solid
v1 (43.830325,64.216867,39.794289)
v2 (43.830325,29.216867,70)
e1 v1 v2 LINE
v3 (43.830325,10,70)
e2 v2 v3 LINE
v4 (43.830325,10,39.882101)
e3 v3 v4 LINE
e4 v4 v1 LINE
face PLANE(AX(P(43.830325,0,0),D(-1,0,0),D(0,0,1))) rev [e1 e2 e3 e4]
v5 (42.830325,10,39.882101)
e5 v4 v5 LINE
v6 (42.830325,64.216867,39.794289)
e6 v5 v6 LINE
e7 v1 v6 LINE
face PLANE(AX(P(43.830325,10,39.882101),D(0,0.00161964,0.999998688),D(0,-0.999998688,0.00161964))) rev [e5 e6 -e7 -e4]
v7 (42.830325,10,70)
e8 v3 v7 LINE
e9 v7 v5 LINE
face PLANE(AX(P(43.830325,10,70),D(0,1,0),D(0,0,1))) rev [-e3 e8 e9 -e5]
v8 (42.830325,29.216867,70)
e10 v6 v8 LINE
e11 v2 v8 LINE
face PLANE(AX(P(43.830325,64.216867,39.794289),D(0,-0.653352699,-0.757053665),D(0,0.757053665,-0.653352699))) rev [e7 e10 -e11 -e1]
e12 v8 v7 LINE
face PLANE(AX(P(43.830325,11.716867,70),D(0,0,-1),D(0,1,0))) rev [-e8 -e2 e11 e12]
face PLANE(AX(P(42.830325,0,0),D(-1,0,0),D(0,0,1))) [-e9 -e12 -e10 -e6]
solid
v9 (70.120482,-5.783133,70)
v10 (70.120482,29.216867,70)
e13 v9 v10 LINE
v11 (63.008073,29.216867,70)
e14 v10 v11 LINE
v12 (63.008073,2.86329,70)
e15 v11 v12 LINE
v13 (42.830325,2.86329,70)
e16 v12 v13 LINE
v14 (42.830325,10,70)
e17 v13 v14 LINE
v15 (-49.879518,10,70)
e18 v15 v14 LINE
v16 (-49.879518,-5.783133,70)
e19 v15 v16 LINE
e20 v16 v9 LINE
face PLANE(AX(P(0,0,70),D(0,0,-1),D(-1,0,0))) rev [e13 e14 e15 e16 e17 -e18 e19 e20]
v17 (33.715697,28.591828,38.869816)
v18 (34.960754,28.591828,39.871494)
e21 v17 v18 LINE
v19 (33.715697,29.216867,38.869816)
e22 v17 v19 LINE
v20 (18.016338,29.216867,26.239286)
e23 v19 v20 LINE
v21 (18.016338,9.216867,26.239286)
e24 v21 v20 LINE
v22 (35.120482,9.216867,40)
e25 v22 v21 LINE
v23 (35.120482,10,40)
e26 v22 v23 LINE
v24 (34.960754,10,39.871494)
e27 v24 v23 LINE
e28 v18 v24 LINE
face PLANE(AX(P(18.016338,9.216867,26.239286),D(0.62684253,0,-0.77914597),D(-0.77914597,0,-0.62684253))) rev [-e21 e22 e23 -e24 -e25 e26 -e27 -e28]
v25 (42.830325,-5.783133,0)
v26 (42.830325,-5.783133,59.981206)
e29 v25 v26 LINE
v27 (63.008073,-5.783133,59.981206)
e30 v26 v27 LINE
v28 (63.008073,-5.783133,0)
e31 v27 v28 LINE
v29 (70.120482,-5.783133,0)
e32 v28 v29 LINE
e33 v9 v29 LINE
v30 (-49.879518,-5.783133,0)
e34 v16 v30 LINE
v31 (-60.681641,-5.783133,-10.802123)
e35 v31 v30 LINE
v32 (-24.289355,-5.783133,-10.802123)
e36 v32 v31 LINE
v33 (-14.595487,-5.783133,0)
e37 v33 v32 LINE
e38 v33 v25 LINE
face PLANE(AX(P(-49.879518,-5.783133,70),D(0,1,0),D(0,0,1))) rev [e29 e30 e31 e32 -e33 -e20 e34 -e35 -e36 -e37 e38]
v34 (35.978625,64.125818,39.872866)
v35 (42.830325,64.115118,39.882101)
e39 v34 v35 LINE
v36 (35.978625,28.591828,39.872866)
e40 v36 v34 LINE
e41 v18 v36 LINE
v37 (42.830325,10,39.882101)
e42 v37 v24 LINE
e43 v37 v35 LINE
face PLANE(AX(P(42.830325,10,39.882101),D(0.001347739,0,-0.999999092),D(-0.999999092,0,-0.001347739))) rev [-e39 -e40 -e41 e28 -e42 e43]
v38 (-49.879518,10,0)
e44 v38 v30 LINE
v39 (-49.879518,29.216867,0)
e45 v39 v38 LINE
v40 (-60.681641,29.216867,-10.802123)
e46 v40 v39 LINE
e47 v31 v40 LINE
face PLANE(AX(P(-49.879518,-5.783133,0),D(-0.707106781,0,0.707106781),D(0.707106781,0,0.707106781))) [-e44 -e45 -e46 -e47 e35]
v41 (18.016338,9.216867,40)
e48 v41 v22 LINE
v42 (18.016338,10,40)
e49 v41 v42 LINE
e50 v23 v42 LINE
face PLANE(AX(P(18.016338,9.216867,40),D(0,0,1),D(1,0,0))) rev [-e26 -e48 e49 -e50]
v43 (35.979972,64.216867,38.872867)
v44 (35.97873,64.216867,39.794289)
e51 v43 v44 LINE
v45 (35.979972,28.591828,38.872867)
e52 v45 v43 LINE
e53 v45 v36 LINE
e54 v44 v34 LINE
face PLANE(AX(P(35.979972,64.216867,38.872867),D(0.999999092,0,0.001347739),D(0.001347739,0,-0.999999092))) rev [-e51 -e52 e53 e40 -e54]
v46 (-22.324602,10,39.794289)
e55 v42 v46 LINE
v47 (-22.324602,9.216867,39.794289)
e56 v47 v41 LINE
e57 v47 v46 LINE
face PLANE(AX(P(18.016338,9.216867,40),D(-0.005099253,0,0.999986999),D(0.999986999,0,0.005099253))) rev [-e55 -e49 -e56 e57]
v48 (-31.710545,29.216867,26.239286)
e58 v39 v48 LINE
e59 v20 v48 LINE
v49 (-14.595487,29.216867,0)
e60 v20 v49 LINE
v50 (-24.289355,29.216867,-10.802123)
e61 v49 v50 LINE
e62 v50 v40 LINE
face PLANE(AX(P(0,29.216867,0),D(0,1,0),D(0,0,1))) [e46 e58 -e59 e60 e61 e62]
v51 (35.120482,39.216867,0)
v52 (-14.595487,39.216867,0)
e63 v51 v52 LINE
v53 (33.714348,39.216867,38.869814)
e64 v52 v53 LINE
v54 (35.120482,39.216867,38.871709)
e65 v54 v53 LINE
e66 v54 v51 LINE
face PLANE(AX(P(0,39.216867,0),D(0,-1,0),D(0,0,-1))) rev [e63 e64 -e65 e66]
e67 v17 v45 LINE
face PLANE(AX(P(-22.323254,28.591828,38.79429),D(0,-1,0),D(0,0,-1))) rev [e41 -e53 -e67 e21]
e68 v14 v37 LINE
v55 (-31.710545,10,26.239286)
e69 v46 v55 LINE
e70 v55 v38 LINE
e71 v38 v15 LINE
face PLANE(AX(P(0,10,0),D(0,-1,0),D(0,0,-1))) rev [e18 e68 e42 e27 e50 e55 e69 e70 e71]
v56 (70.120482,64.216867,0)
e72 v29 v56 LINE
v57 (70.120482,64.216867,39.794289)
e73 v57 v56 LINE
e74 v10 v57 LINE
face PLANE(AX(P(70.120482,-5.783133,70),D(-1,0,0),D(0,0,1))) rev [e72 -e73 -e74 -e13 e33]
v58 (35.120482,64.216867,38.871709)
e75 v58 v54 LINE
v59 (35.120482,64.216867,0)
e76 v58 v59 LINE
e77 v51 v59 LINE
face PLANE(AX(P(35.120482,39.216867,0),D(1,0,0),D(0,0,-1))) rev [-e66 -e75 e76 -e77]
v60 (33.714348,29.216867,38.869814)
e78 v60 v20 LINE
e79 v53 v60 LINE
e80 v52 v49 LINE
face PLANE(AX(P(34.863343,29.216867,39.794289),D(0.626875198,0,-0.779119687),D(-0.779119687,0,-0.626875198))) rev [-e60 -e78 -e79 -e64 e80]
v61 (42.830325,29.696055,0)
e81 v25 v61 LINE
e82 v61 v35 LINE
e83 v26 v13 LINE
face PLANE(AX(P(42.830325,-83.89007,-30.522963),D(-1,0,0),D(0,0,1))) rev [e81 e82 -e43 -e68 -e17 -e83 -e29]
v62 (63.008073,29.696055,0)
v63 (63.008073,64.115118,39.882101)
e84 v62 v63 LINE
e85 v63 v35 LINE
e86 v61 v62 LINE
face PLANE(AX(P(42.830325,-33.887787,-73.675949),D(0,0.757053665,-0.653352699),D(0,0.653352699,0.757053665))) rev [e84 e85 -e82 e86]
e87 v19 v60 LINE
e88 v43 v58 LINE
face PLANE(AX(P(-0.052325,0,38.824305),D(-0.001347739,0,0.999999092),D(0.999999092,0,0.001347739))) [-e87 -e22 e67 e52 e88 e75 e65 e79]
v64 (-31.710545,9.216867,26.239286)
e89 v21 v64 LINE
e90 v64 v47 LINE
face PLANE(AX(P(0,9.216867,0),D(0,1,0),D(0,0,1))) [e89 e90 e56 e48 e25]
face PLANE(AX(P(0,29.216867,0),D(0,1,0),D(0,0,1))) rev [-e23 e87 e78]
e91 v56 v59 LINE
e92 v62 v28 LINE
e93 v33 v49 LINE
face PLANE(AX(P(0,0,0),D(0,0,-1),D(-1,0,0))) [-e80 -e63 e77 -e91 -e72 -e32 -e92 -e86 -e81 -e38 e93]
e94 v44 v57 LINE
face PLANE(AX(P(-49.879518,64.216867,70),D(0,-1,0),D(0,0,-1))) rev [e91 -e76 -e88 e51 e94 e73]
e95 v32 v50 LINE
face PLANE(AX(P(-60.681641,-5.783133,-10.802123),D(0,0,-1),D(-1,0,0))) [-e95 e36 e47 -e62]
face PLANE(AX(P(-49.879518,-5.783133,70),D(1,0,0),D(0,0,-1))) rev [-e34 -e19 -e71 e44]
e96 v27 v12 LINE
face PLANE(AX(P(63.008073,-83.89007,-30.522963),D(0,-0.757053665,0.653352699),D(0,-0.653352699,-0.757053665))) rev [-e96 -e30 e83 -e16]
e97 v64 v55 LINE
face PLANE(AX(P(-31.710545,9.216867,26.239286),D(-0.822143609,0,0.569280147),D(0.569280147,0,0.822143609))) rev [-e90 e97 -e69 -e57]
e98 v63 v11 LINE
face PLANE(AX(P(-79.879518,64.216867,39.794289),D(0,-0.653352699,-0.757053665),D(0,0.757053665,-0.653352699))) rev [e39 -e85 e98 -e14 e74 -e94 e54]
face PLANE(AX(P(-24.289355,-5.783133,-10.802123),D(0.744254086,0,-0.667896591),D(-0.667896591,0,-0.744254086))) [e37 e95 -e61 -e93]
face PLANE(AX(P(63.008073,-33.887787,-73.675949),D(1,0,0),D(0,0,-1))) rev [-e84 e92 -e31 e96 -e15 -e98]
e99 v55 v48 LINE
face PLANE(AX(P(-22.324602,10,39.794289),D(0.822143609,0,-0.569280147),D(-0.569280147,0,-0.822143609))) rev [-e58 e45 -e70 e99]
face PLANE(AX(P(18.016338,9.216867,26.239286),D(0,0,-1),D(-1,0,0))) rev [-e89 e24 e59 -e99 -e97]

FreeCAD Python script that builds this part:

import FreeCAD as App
import Part
import Sketcher
from FreeCAD import Vector
Q = App.Units.Quantity

doc = App.newDocument("Part")
body = doc.addObject("PartDesign::Body", "Body")

# Sketch on XY plane
sketch1 = doc.addObject("Sketcher::SketchObject", "Sketch")
body.addObject(sketch1)
sketch1.AttachmentSupport = (doc.XY_Plane, [""])
sketch1.MapMode = "FlatFace"
sketch1.addGeometry([
    Part.LineSegment(Vector(-50, 64, 0), Vector(-50, -6, 0)),
    Part.LineSegment(Vector(-50, -6, 0), Vector(70, -6, 0)),
    Part.LineSegment(Vector(70, -6, 0), Vector(70, 64, 0)),
    Part.LineSegment(Vector(70, 64, 0), Vector(-50, 64, 0)),
], False)
sketch1.addConstraint([
    Sketcher.Constraint("Coincident", 0, 2, 1, 1),
    Sketcher.Constraint("Coincident", 1, 2, 2, 1),
    Sketcher.Constraint("Coincident", 2, 2, 3, 1),
    Sketcher.Constraint("Coincident", 3, 2, 0, 1),
    Sketcher.Constraint("Vertical", 0),
    Sketcher.Constraint("Horizontal", 1),
    Sketcher.Constraint("Vertical", 2),
    Sketcher.Constraint("Horizontal", 3),
    Sketcher.Constraint("DistanceX", 1, 1, 1, 2, 120.0),
    Sketcher.Constraint("DistanceY", 0, 2, 0, 1, 70.0),
    Sketcher.Constraint("DistanceX", 0, 2, -1, 1, 49.879518),
    Sketcher.Constraint("DistanceY", 0, 2, -1, 1, 5.783133),
])
pad1 = doc.addObject("PartDesign::Pad", "Pad")
body.addObject(pad1)
pad1.Profile = sketch1
pad1.Length = 70

# Sketch on YZ plane
sketch2 = doc.addObject("Sketcher::SketchObject", "Sketch001")
body.addObject(sketch2)
sketch2.AttachmentSupport = (doc.YZ_Plane, [""])
sketch2.MapMode = "FlatFace"
sketch2.AttachmentOffset = App.Placement(Vector(0, 0, 70.120482), App.Rotation())
sketch2.addGeometry([
    Part.LineSegment(Vector(29, 70, 0), Vector(64, 40, 0)),
    Part.LineSegment(Vector(64, 40, 0), Vector(64, 70, 0)),
    Part.LineSegment(Vector(64, 70, 0), Vector(29, 70, 0)),
], False)
sketch2.addConstraint([
    Sketcher.Constraint("Coincident", 0, 2, 1, 1),
    Sketcher.Constraint("Coincident", 1, 2, 2, 1),
    Sketcher.Constraint("Coincident", 2, 2, 0, 1),
    Sketcher.Constraint("Vertical", 1),
    Sketcher.Constraint("Horizontal", 2),
    Sketcher.Constraint("DistanceX", 2, 2, 2, 1, 35.0),
    Sketcher.Constraint("DistanceY", -1, 1, 1, 2, 70.0),
    Sketcher.Constraint("DistanceY", 1, 1, 1, 2, 30.205711),
    Sketcher.Constraint("DistanceX", -1, 1, 0, 2, 64.216867),
])
pocket1 = doc.addObject("PartDesign::Pocket", "Pocket")
body.addObject(pocket1)
pocket1.Profile = sketch2
pocket1.Length = 150

# Sketch on an angled plane
sketch3 = doc.addObject("Sketcher::SketchObject", "Sketch002")
body.addObject(sketch3)
sketch3.Placement = App.Placement(Vector(0, 47.095411, 54.570454), App.Rotation(Vector(1, 0, 0), Vector(0, 0.757053665, -0.653352699), Vector(0, 0.653352699, 0.757053665), "ZXY"))
sketch3.addGeometry([
    Part.LineSegment(Vector(43, 22, 0), Vector(43, -44, 0)),
    Part.LineSegment(Vector(43, -44, 0), Vector(63, -44, 0)),
    Part.LineSegment(Vector(63, -44, 0), Vector(63, 22, 0)),
    Part.LineSegment(Vector(63, 22, 0), Vector(43, 22, 0)),
], False)
sketch3.addConstraint([
    Sketcher.Constraint("Coincident", 0, 2, 1, 1),
    Sketcher.Constraint("Coincident", 1, 2, 2, 1),
    Sketcher.Constraint("Coincident", 2, 2, 3, 1),
    Sketcher.Constraint("Coincident", 3, 2, 0, 1),
    Sketcher.Constraint("Vertical", 0),
    Sketcher.Constraint("Horizontal", 1),
    Sketcher.Constraint("Vertical", 2),
    Sketcher.Constraint("Horizontal", 3),
    Sketcher.Constraint("DistanceY", 0, 2, 0, 1, 66.048531),
    Sketcher.Constraint("DistanceX", 1, 1, 1, 2, 20.177748),
    Sketcher.Constraint("DistanceX", -1, 1, 0, 2, 42.830325),
    Sketcher.Constraint("DistanceY", 0, 2, -1, 1, 43.567024),
])
pocket2 = doc.addObject("PartDesign::Pocket", "Pocket001")
body.addObject(pocket2)
pocket2.Profile = sketch3
pocket2.Length = 150

# Sketch on XZ plane
sketch4 = doc.addObject("Sketcher::SketchObject", "Sketch003")
body.addObject(sketch4)
sketch4.AttachmentSupport = (doc.XZ_Plane, [""])
sketch4.MapMode = "FlatFace"
sketch4.AttachmentOffset = App.Placement(Vector(0, 0, -64.216867), App.Rotation())
sketch4.addGeometry([
    Part.LineSegment(Vector(35, 0, 0), Vector(-15, 0, 0)),
    Part.LineSegment(Vector(-15, 0, 0), Vector(35, 40, 0)),
    Part.LineSegment(Vector(35, 40, 0), Vector(35, 0, 0)),
], False)
sketch4.addConstraint([
    Sketcher.Constraint("Coincident", 0, 2, 1, 1),
    Sketcher.Constraint("Coincident", 1, 2, 2, 1),
    Sketcher.Constraint("Coincident", 2, 2, 0, 1),
    Sketcher.Constraint("Horizontal", 0),
    Sketcher.Constraint("Vertical", 2),
    Sketcher.Constraint("PointOnObject", 0, 2, -1),
    Sketcher.Constraint("DistanceX", 0, 2, 0, 1, 50.0),
    Sketcher.Constraint("DistanceY", 2, 2, 2, 1, 40.0),
    Sketcher.Constraint("DistanceX", 0, 2, -1, 1, 14.879518),
])
pocket3 = doc.addObject("PartDesign::Pocket", "Pocket002")
body.addObject(pocket3)
pocket3.Profile = sketch4
pocket3.Length = 25
pocket3.Reversed = True

# Sketch on XZ plane
sketch5 = doc.addObject("Sketcher::SketchObject", "Sketch004")
body.addObject(sketch5)
sketch5.AttachmentSupport = (doc.XZ_Plane, [""])
sketch5.MapMode = "FlatFace"
sketch5.AttachmentOffset = App.Placement(Vector(0, 0, -64.216867), App.Rotation())
sketch5.addGeometry([
    Part.LineSegment(Vector(-22, 40, 0), Vector(35, 40, 0)),  # 0
    Part.LineSegment(Vector(35, 40, 0), Vector(-30, -12, 0)),  # 1
    Part.LineSegment(Vector(-30, -12, 0), Vector(-59, -12, 0)),  # 2
    Part.LineSegment(Vector(-59, -12, 0), Vector(-50, 0, 0)),  # 3
    Part.LineSegment(Vector(-50, 0, 0), Vector(-22, 40, 0)),  # 4
], False)
sketch5.addConstraint([
    Sketcher.Constraint("Coincident", 0, 2, 1, 1),
    Sketcher.Constraint("Coincident", 1, 2, 2, 1),
    Sketcher.Constraint("Coincident", 2, 2, 3, 1),
    Sketcher.Constraint("Coincident", 3, 2, 4, 1),
    Sketcher.Constraint("Coincident", 4, 2, 0, 1),
    Sketcher.Constraint("Horizontal", 0),
    Sketcher.Constraint("Horizontal", 2),
    Sketcher.Constraint("PointOnObject", 3, 2, -1),
    Sketcher.Constraint("Parallel", 3, 4),
    Sketcher.Constraint("DistanceX", 2, 2, 2, 1, 28.425628),
    Sketcher.Constraint("DistanceX", 4, 2, -1, 1, 22.324602),
    Sketcher.Constraint("Distance", 3, 15.155642),
    Sketcher.Constraint("DistanceX", 0, 1, 0, 2, 57.187944),
    Sketcher.Constraint("DistanceY", -1, 1, 0, 2, 39.794289),
    Sketcher.Constraint("DistanceX", 3, 2, -1, 1, 49.879518),
])
pocket4 = doc.addObject("PartDesign::Pocket", "Pocket003")
body.addObject(pocket4)
pocket4.Profile = sketch5
pocket4.Length = 35
pocket4.Reversed = True

# Sketch on XZ plane
sketch6 = doc.addObject("Sketcher::SketchObject", "Sketch005")
body.addObject(sketch6)
sketch6.AttachmentSupport = (doc.XZ_Plane, [""])
sketch6.MapMode = "FlatFace"
sketch6.AttachmentOffset = App.Placement(Vector(0, 0, -29.216867), App.Rotation())
sketch6.addGeometry([
    Part.LineSegment(Vector(-61, -11, 0), Vector(-50, 0, 0)),
    Part.LineSegment(Vector(-50, 0, 0), Vector(-15, 0, 0)),
    Part.LineSegment(Vector(-15, 0, 0), Vector(-24, -11, 0)),
    Part.LineSegment(Vector(-24, -11, 0), Vector(-61, -11, 0)),
], False)
sketch6.addConstraint([
    Sketcher.Constraint("Coincident", 0, 2, 1, 1),
    Sketcher.Constraint("Coincident", 1, 2, 2, 1),
    Sketcher.Constraint("Coincident", 2, 2, 3, 1),
    Sketcher.Constraint("Coincident", 3, 2, 0, 1),
    Sketcher.Constraint("Horizontal", 1),
    Sketcher.Constraint("Horizontal", 3),
    Sketcher.Constraint("PointOnObject", 0, 2, -1),
    Sketcher.Constraint("Angle", 0, Q("45 deg")),
    Sketcher.Constraint("DistanceX", 1, 1, 1, 2, 35.284031),
    Sketcher.Constraint("Distance", 0, 15.276508),
    Sketcher.Constraint("DistanceX", 3, 2, 3, 1, 36.392286),
    Sketcher.Constraint("DistanceX", 0, 2, -1, 1, 49.879518),
])
pad2 = doc.addObject("PartDesign::Pad", "Pad001")
body.addObject(pad2)
pad2.Profile = sketch6
pad2.Length = 35

# Sketch on XZ plane
sketch7 = doc.addObject("Sketcher::SketchObject", "Sketch006")
body.addObject(sketch7)
sketch7.AttachmentSupport = (doc.XZ_Plane, [""])
sketch7.MapMode = "FlatFace"
sketch7.AttachmentOffset = App.Placement(Vector(0, 0, -65), App.Rotation())
sketch7.addGeometry([
    Part.LineSegment(Vector(-50, 0, 0), Vector(-50, 70, 0)),  # 0
    Part.LineSegment(Vector(-50, 70, 0), Vector(43, 70, 0)),  # 1
    Part.LineSegment(Vector(43, 70, 0), Vector(43, 40, 0)),  # 2
    Part.LineSegment(Vector(43, 40, 0), Vector(-22, 40, 0)),  # 3
    Part.LineSegment(Vector(-22, 40, 0), Vector(-50, 0, 0)),  # 4
], False)
sketch7.addConstraint([
    Sketcher.Constraint("Coincident", 0, 2, 1, 1),
    Sketcher.Constraint("Coincident", 1, 2, 2, 1),
    Sketcher.Constraint("Coincident", 2, 2, 3, 1),
    Sketcher.Constraint("Coincident", 3, 2, 4, 1),
    Sketcher.Constraint("Coincident", 4, 2, 0, 1),
    Sketcher.Constraint("Vertical", 0),
    Sketcher.Constraint("Horizontal", 1),
    Sketcher.Constraint("Vertical", 2),
    Sketcher.Constraint("PointOnObject", 4, 2, -1),
    Sketcher.Constraint("DistanceY", 0, 1, 0, 2, 70.0),
    Sketcher.Constraint("DistanceY", 2, 2, 2, 1, 30.117899),
    Sketcher.Constraint("DistanceX", 3, 2, -1, 1, 22.324602),
    Sketcher.Constraint("DistanceX", 1, 1, 1, 2, 92.709843),
    Sketcher.Constraint("DistanceX", 0, 2, -1, 1, 49.879518),
    Sketcher.Constraint("DistanceY", -1, 1, 3, 2, 39.794289),
])
pocket5 = doc.addObject("PartDesign::Pocket", "Pocket004")
body.addObject(pocket5)
pocket5.Profile = sketch7
pocket5.Length = 55
pocket5.Reversed = True

# Sketch on an angled plane
sketch8 = doc.addObject("Sketcher::SketchObject", "Sketch007")
body.addObject(sketch8)
sketch8.Placement = App.Placement(Vector(-0.053673, 0, 39.824304), App.Rotation(Vector(0.999999092, 0, 0.001347739), Vector(0, 1, 0), Vector(-0.001347739, 0, 0.999999092), "ZXY"))
sketch8.addGeometry([
    Part.LineSegment(Vector(-22, 64, 0), Vector(-22, 29, 0)),
    Part.LineSegment(Vector(-22, 29, 0), Vector(36, 29, 0)),
    Part.LineSegment(Vector(36, 29, 0), Vector(36, 64, 0)),
    Part.LineSegment(Vector(36, 64, 0), Vector(-22, 64, 0)),
], False)
sketch8.addConstraint([
    Sketcher.Constraint("Coincident", 0, 2, 1, 1),
    Sketcher.Constraint("Coincident", 1, 2, 2, 1),
    Sketcher.Constraint("Coincident", 2, 2, 3, 1),
    Sketcher.Constraint("Coincident", 3, 2, 0, 1),
    Sketcher.Constraint("Vertical", 0),
    Sketcher.Constraint("Horizontal", 1),
    Sketcher.Constraint("Vertical", 2),
    Sketcher.Constraint("Horizontal", 3),
    Sketcher.Constraint("DistanceX", 1, 1, 1, 2, 58.303279),
    Sketcher.Constraint("DistanceY", 0, 2, 0, 1, 35.62504),
    Sketcher.Constraint("DistanceX", 0, 2, -1, 1, 22.270949),
    Sketcher.Constraint("DistanceY", -1, 1, 0, 2, 28.591828),
])
pocket6 = doc.addObject("PartDesign::Pocket", "Pocket005")
body.addObject(pocket6)
pocket6.Profile = sketch8
pocket6.Length = 1

# Sketch on XZ plane
sketch9 = doc.addObject("Sketcher::SketchObject", "Sketch008")
body.addObject(sketch9)
sketch9.AttachmentSupport = (doc.XZ_Plane, [""])
sketch9.MapMode = "FlatFace"
sketch9.AttachmentOffset = App.Placement(Vector(0, 0, -29.216867), App.Rotation())
sketch9.addGeometry([
    Part.LineSegment(Vector(35, 40, 0), Vector(18, 26, 0)),
    Part.LineSegment(Vector(18, 26, 0), Vector(18, 40, 0)),
    Part.LineSegment(Vector(18, 40, 0), Vector(35, 40, 0)),
], False)
sketch9.addConstraint([
    Sketcher.Constraint("Coincident", 0, 2, 1, 1),
    Sketcher.Constraint("Coincident", 1, 2, 2, 1),
    Sketcher.Constraint("Coincident", 2, 2, 0, 1),
    Sketcher.Constraint("Vertical", 1),
    Sketcher.Constraint("Horizontal", 2),
    Sketcher.Constraint("DistanceY", -1, 1, 1, 2, 40.0),
    Sketcher.Constraint("DistanceX", 2, 1, 2, 2, 17.104143),
    Sketcher.Constraint("DistanceY", 1, 1, 1, 2, 13.760714),
    Sketcher.Constraint("DistanceX", -1, 1, 0, 2, 18.016338),
])
pocket7 = doc.addObject("PartDesign::Pocket", "Pocket006")
body.addObject(pocket7)
pocket7.Profile = sketch9
pocket7.Length = 20
pocket7.Reversed = True

# Sketch on XZ plane
sketch10 = doc.addObject("Sketcher::SketchObject", "Sketch009")
body.addObject(sketch10)
sketch10.AttachmentSupport = (doc.XZ_Plane, [""])
sketch10.MapMode = "FlatFace"
sketch10.AttachmentOffset = App.Placement(Vector(0, 0, -29.216867), App.Rotation())
sketch10.addGeometry([
    Part.LineSegment(Vector(-22, 40, 0), Vector(18, 40, 0)),
    Part.LineSegment(Vector(18, 40, 0), Vector(18, 26, 0)),
    Part.LineSegment(Vector(18, 26, 0), Vector(-32, 26, 0)),
    Part.LineSegment(Vector(-32, 26, 0), Vector(-22, 40, 0)),
], False)
sketch10.addConstraint([
    Sketcher.Constraint("Coincident", 0, 2, 1, 1),
    Sketcher.Constraint("Coincident", 1, 2, 2, 1),
    Sketcher.Constraint("Coincident", 2, 2, 3, 1),
    Sketcher.Constraint("Coincident", 3, 2, 0, 1),
    Sketcher.Constraint("Vertical", 1),
    Sketcher.Constraint("Horizontal", 2),
    Sketcher.Constraint("DistanceY", -1, 1, 0, 2, 40.0),
    Sketcher.Constraint("DistanceX", 3, 2, -1, 1, 22.324602),
    Sketcher.Constraint("Distance", 3, 16.48739),
    Sketcher.Constraint("DistanceX", 2, 2, 2, 1, 49.726884),
    Sketcher.Constraint("DistanceY", 1, 2, 1, 1, 13.760714),
    Sketcher.Constraint("DistanceX", -1, 1, 0, 2, 18.016338),
])
pocket8 = doc.addObject("PartDesign::Pocket", "Pocket007")
body.addObject(pocket8)
pocket8.Profile = sketch10
pocket8.Length = 20
pocket8.Reversed = True
body2 = doc.addObject("PartDesign::Body", "Body001")

# Sketch on YZ plane
sketch11 = doc.addObject("Sketcher::SketchObject", "Sketch010")
body2.addObject(sketch11)
sketch11.AttachmentSupport = (doc.getObject("YZ_Plane001"), [""])
sketch11.MapMode = "FlatFace"
sketch11.AttachmentOffset = App.Placement(Vector(0, 0, 42.830325), App.Rotation())
sketch11.addGeometry([
    Part.LineSegment(Vector(64, 40, 0), Vector(29, 70, 0)),
    Part.LineSegment(Vector(29, 70, 0), Vector(10, 70, 0)),
    Part.LineSegment(Vector(10, 70, 0), Vector(10, 40, 0)),
    Part.LineSegment(Vector(10, 40, 0), Vector(64, 40, 0)),
], False)
sketch11.addConstraint([
    Sketcher.Constraint("Coincident", 0, 2, 1, 1),
    Sketcher.Constraint("Coincident", 1, 2, 2, 1),
    Sketcher.Constraint("Coincident", 2, 2, 3, 1),
    Sketcher.Constraint("Coincident", 3, 2, 0, 1),
    Sketcher.Constraint("Horizontal", 1),
    Sketcher.Constraint("Vertical", 2),
    Sketcher.Constraint("DistanceY", -1, 1, 0, 2, 70.0),
    Sketcher.Constraint("DistanceX", -1, 1, 1, 2, 10.0),
    Sketcher.Constraint("DistanceX", 0, 2, 3, 2, 35.0),
    Sketcher.Constraint("DistanceY", 2, 2, 2, 1, 30.117899),
    Sketcher.Constraint("Distance", 0, 46.231861),
    Sketcher.Constraint("Distance", 3, 54.216939),
])
pad3 = doc.addObject("PartDesign::Pad", "Pad002")
body2.addObject(pad3)
pad3.Profile = sketch11
pad3.Length = 1

doc.recompute()
